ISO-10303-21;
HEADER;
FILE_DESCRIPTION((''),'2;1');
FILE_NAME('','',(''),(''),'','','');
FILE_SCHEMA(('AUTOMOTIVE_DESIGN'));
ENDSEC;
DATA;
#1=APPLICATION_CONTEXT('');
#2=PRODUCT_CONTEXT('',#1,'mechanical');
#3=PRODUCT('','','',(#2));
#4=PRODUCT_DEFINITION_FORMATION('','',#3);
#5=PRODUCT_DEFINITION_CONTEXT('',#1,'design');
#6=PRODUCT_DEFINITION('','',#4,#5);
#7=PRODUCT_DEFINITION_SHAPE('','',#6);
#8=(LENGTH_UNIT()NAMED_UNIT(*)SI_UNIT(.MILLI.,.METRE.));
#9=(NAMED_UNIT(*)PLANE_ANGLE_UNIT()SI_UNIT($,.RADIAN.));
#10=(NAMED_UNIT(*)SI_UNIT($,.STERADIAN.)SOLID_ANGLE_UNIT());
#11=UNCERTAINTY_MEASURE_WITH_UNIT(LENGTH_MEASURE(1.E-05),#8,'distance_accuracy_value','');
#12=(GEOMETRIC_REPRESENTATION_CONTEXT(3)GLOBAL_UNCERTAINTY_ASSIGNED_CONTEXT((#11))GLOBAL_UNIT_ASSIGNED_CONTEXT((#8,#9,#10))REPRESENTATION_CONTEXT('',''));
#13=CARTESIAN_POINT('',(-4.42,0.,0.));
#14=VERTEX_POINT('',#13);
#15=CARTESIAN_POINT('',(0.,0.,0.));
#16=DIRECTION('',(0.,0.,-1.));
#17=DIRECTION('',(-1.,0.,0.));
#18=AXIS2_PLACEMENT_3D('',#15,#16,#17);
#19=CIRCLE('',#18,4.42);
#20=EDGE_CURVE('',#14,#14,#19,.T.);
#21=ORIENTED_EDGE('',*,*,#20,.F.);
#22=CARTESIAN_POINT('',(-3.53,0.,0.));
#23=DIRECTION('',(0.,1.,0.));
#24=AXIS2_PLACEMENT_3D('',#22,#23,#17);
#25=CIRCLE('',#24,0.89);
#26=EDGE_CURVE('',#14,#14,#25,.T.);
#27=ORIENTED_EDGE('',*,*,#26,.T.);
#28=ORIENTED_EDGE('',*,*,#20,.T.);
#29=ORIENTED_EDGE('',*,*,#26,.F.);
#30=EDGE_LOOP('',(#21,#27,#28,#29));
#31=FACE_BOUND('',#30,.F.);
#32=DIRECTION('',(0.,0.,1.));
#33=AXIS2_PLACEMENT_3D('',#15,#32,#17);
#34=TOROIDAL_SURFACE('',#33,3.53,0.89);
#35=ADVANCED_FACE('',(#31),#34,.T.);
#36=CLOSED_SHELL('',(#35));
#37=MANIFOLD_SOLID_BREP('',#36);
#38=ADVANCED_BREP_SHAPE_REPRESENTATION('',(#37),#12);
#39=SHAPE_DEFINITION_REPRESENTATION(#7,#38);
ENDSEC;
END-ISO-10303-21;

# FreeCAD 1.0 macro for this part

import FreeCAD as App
import Part
import Sketcher
Q = App.Units.Quantity

doc = App.newDocument("Part")
body = doc.addObject("PartDesign::Body", "Body")

# Sketch on XZ plane
sketch1 = body.newObject("Sketcher::SketchObject", "Sketch")
sketch1.AttachmentSupport = (doc.getObject("XZ_Plane"), [""])
sketch1.MapMode = "FlatFace"
sketch1.addGeometry(Part.Circle(App.Vector(-3.53, 0, 0), App.Vector(0, 0, 1), 0.89), False)
sketch1.addConstraint([
    Sketcher.Constraint("PointOnObject", 0, 3, -1),
    Sketcher.Constraint("Diameter", 0, Q("1.78 mm")),
    Sketcher.Constraint("DistanceX", 0, 3, -1, 1, Q("3.53 mm")),
])
revolution = body.newObject("PartDesign::Revolution", "Revolution")
revolution.Profile = sketch1
revolution.ReferenceAxis = (sketch1, ["V_Axis"])
revolution.Angle = 360

doc.recompute()
